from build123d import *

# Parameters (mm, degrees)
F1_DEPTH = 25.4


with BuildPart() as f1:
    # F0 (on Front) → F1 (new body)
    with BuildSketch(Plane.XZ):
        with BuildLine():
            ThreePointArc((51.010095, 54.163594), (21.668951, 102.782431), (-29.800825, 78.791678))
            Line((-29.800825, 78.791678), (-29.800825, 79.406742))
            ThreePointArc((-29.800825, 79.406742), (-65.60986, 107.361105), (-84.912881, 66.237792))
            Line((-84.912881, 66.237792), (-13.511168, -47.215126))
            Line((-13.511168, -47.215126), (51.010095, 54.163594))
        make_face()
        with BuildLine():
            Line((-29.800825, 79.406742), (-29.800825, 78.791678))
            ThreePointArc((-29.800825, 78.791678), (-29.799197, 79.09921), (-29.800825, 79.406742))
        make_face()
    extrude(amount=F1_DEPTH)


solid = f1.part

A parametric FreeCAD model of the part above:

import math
import FreeCAD as App
import Part
import Sketcher
from FreeCAD import Vector
Q = App.Units.Quantity

doc = App.newDocument("Part")
body = doc.addObject("PartDesign::Body", "Body")

sketch1 = doc.addObject("Sketcher::SketchObject", "Sketch")
body.addObject(sketch1)
sketch1.AttachmentSupport = (doc.XZ_Plane, [""])
sketch1.MapMode = "FlatFace"
sketch1.addGeometry([
    Part.ArcOfCircle(Part.Circle(Vector(9.3, 62.1, 0), Vector(0, 0, 1), 42.5), math.radians(-11), math.radians(157)),
    Part.ArcOfCircle(Part.Circle(Vector(-58.8, 79.1, 0), Vector(0, 0, 1), 29), math.radians(-0.61), math.radians(0.61)),
    Part.ArcOfCircle(Part.Circle(Vector(-58.9, 79.1, 0), Vector(0, 0, 1), 29.1), math.radians(1), math.radians(206)),
    Part.LineSegment(Vector(-84.9, 66.2, 0), Vector(-13.5, -47.2, 0)),
    Part.LineSegment(Vector(-13.5, -47.2, 0), Vector(51, 54.2, 0)),
], False)
sketch1.addConstraint([
    Sketcher.Constraint("Coincident", 0, 2, 1, 1),
    Sketcher.Constraint("Coincident", 1, 2, 2, 1),
    Sketcher.Constraint("Coincident", 2, 2, 3, 1),
    Sketcher.Constraint("Coincident", 3, 2, 4, 1),
    Sketcher.Constraint("Coincident", 4, 2, 0, 1),
    Sketcher.Constraint("Horizontal", 1, 3, 2, 3),
    Sketcher.Constraint("Vertical", 0, 2, 1, 2),
    Sketcher.Constraint("Radius", 0, Q("42.482331 mm")),
    Sketcher.Constraint("Radius", 1, Q("29.047476 mm")),
    Sketcher.Constraint("Radius", 2, Q("29.057522 mm")),
    Sketcher.Constraint("DistanceX", -1, 1, 0, 3, Q("9.28433 mm")),
    Sketcher.Constraint("DistanceY", -1, 1, 1, 3, Q("79.09921 mm")),
    Sketcher.Constraint("DistanceX", 2, 3, -1, 1, Q("58.85672 mm")),
    Sketcher.Constraint("DistanceY", -1, 1, 0, 2, Q("78.791678 mm")),
    Sketcher.Constraint("DistanceX", 2, 2, -1, 1, Q("84.912881 mm")),
    Sketcher.Constraint("DistanceY", 3, 2, 0, 3, Q("109.36051 mm")),
    Sketcher.Constraint("DistanceY", 4, 2, 0, 3, Q("7.98179 mm")),
    Sketcher.Constraint("Distance", 3, Q("134.051368 mm")),
])
pad1 = doc.addObject("PartDesign::Pad", "Pad")
body.addObject(pad1)
pad1.Profile = sketch1
pad1.Length = Q("1 in")

doc.recompute()
